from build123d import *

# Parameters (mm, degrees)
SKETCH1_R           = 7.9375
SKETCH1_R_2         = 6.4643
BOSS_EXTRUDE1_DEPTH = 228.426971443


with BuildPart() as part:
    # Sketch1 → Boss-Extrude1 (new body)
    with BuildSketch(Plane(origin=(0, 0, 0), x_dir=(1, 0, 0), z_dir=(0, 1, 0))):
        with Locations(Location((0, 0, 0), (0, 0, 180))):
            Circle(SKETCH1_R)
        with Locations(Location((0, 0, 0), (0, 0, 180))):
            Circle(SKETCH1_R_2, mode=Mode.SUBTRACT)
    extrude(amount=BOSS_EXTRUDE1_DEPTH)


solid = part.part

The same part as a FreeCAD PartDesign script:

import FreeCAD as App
import Part
import Sketcher
Q = App.Units.Quantity

doc = App.newDocument("Part")
params = doc.addObject("Spreadsheet::Sheet", "Params")
for row, (alias, value) in enumerate([
    ("sketch1_diameter", "0.625 in"),
    ("sketch1_diameter2", "0.509 in"),
    ("pad1_length", "228.426971 mm"),
], start=1):
    params.set(f"A{row}", alias)
    params.set(f"B{row}", "=" + value)
    params.setAlias(f"B{row}", alias)

body = doc.addObject("PartDesign::Body", "Body")

# Sketch on XZ plane
sketch1 = body.newObject("Sketcher::SketchObject", "Sketch")
sketch1.AttachmentSupport = (doc.getObject("XZ_Plane"), [""])
sketch1.MapMode = "FlatFace"
sketch1.addGeometry([
    Part.Circle(App.Vector(0, 0, 0), App.Vector(0, 0, 1), 8),
    Part.Circle(App.Vector(0, 0, 0), App.Vector(0, 0, 1), 6),
], False)
sketch1.addConstraint([
    Sketcher.Constraint("Coincident", 0, 3, -1, 1),
    Sketcher.Constraint("Coincident", 1, 3, -1, 1),
    Sketcher.Constraint("Diameter", 0, Q("0.625 in")),
    Sketcher.Constraint("Diameter", 1, Q("0.509 in")),
])
sketch1.setExpression("Constraints[2]", "Params.sketch1_diameter")
sketch1.setExpression("Constraints[3]", "Params.sketch1_diameter2")
pad1 = body.newObject("PartDesign::Pad", "Pad")
pad1.Profile = sketch1
pad1.setExpression("Length", "Params.pad1_length")
pad1.Reversed = True

doc.recompute()
